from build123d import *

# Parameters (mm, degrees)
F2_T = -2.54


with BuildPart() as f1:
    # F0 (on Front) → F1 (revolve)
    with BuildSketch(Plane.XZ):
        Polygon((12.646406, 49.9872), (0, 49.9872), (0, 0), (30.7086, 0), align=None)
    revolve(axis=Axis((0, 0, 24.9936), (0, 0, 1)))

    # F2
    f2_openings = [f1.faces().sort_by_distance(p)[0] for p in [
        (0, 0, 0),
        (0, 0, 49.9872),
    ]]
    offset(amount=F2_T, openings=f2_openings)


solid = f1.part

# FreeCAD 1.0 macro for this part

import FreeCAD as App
import Part
import Sketcher
Q = App.Units.Quantity


def faces_at(feature, points):
    """Names of the faces that lie closest to the given points."""
    faces = feature.Shape.Faces
    near = lambda p: min(range(len(faces)), key=lambda i: faces[i].distToShape(Part.Vertex(*p))[0])
    return sorted({f"Face{near(p) + 1}" for p in points})

doc = App.newDocument("Part")
body = doc.addObject("PartDesign::Body", "Body")

sketch1 = doc.addObject("Sketcher::SketchObject", "Sketch")
body.addObject(sketch1)
sketch1.AttachmentSupport = (doc.XZ_Plane, [""])
sketch1.MapMode = "FlatFace"
sketch1.addGeometry(Part.LineSegment(App.Vector(13, 50, 0), App.Vector(0, 50, 0)), False)
sketch1.addGeometry(Part.LineSegment(App.Vector(0, 50, 0), App.Vector(0, 0, 0)), False)
sketch1.addGeometry(Part.LineSegment(App.Vector(0, 0, 0), App.Vector(31, 0, 0)), False)
sketch1.addGeometry(Part.LineSegment(App.Vector(31, 0, 0), App.Vector(13, 50, 0)), False)
sketch1.addConstraint(Sketcher.Constraint("Coincident", 0, 2, 1, 1))
sketch1.addConstraint(Sketcher.Constraint("Coincident", 1, 2, 2, 1))
sketch1.addConstraint(Sketcher.Constraint("Coincident", 2, 2, 3, 1))
sketch1.addConstraint(Sketcher.Constraint("Coincident", 3, 2, 0, 1))
sketch1.addConstraint(Sketcher.Constraint("Horizontal", 0))
sketch1.addConstraint(Sketcher.Constraint("Vertical", 1))
sketch1.addConstraint(Sketcher.Constraint("Horizontal", 2))
sketch1.addConstraint(Sketcher.Constraint("Coincident", 1, 2, -1, 1))
sketch1.addConstraint(Sketcher.Constraint("DistanceX", 2, 1, 2, 2, Q("1.209 in")))
sketch1.addConstraint(Sketcher.Constraint("DistanceY", 1, 2, 1, 1, Q("1.968 in")))
sketch1.addConstraint(Sketcher.Constraint("Distance", 3, 53.150381))
revolution = doc.addObject("PartDesign::Revolution", "Revolution")
body.addObject(revolution)
revolution.Profile = sketch1
revolution.ReferenceAxis = (sketch1, ["V_Axis"])
revolution.Angle = 360
doc.recompute()

thickness = doc.addObject("PartDesign::Thickness", "Thickness")
body.addObject(thickness)
thickness.Base = (revolution, faces_at(revolution, [(0, 0, 0), (0, 0, 49.987)]))
thickness.Value = Q("0.1 in")
thickness.Reversed = True
thickness.Join = "Arc"

doc.recompute()
